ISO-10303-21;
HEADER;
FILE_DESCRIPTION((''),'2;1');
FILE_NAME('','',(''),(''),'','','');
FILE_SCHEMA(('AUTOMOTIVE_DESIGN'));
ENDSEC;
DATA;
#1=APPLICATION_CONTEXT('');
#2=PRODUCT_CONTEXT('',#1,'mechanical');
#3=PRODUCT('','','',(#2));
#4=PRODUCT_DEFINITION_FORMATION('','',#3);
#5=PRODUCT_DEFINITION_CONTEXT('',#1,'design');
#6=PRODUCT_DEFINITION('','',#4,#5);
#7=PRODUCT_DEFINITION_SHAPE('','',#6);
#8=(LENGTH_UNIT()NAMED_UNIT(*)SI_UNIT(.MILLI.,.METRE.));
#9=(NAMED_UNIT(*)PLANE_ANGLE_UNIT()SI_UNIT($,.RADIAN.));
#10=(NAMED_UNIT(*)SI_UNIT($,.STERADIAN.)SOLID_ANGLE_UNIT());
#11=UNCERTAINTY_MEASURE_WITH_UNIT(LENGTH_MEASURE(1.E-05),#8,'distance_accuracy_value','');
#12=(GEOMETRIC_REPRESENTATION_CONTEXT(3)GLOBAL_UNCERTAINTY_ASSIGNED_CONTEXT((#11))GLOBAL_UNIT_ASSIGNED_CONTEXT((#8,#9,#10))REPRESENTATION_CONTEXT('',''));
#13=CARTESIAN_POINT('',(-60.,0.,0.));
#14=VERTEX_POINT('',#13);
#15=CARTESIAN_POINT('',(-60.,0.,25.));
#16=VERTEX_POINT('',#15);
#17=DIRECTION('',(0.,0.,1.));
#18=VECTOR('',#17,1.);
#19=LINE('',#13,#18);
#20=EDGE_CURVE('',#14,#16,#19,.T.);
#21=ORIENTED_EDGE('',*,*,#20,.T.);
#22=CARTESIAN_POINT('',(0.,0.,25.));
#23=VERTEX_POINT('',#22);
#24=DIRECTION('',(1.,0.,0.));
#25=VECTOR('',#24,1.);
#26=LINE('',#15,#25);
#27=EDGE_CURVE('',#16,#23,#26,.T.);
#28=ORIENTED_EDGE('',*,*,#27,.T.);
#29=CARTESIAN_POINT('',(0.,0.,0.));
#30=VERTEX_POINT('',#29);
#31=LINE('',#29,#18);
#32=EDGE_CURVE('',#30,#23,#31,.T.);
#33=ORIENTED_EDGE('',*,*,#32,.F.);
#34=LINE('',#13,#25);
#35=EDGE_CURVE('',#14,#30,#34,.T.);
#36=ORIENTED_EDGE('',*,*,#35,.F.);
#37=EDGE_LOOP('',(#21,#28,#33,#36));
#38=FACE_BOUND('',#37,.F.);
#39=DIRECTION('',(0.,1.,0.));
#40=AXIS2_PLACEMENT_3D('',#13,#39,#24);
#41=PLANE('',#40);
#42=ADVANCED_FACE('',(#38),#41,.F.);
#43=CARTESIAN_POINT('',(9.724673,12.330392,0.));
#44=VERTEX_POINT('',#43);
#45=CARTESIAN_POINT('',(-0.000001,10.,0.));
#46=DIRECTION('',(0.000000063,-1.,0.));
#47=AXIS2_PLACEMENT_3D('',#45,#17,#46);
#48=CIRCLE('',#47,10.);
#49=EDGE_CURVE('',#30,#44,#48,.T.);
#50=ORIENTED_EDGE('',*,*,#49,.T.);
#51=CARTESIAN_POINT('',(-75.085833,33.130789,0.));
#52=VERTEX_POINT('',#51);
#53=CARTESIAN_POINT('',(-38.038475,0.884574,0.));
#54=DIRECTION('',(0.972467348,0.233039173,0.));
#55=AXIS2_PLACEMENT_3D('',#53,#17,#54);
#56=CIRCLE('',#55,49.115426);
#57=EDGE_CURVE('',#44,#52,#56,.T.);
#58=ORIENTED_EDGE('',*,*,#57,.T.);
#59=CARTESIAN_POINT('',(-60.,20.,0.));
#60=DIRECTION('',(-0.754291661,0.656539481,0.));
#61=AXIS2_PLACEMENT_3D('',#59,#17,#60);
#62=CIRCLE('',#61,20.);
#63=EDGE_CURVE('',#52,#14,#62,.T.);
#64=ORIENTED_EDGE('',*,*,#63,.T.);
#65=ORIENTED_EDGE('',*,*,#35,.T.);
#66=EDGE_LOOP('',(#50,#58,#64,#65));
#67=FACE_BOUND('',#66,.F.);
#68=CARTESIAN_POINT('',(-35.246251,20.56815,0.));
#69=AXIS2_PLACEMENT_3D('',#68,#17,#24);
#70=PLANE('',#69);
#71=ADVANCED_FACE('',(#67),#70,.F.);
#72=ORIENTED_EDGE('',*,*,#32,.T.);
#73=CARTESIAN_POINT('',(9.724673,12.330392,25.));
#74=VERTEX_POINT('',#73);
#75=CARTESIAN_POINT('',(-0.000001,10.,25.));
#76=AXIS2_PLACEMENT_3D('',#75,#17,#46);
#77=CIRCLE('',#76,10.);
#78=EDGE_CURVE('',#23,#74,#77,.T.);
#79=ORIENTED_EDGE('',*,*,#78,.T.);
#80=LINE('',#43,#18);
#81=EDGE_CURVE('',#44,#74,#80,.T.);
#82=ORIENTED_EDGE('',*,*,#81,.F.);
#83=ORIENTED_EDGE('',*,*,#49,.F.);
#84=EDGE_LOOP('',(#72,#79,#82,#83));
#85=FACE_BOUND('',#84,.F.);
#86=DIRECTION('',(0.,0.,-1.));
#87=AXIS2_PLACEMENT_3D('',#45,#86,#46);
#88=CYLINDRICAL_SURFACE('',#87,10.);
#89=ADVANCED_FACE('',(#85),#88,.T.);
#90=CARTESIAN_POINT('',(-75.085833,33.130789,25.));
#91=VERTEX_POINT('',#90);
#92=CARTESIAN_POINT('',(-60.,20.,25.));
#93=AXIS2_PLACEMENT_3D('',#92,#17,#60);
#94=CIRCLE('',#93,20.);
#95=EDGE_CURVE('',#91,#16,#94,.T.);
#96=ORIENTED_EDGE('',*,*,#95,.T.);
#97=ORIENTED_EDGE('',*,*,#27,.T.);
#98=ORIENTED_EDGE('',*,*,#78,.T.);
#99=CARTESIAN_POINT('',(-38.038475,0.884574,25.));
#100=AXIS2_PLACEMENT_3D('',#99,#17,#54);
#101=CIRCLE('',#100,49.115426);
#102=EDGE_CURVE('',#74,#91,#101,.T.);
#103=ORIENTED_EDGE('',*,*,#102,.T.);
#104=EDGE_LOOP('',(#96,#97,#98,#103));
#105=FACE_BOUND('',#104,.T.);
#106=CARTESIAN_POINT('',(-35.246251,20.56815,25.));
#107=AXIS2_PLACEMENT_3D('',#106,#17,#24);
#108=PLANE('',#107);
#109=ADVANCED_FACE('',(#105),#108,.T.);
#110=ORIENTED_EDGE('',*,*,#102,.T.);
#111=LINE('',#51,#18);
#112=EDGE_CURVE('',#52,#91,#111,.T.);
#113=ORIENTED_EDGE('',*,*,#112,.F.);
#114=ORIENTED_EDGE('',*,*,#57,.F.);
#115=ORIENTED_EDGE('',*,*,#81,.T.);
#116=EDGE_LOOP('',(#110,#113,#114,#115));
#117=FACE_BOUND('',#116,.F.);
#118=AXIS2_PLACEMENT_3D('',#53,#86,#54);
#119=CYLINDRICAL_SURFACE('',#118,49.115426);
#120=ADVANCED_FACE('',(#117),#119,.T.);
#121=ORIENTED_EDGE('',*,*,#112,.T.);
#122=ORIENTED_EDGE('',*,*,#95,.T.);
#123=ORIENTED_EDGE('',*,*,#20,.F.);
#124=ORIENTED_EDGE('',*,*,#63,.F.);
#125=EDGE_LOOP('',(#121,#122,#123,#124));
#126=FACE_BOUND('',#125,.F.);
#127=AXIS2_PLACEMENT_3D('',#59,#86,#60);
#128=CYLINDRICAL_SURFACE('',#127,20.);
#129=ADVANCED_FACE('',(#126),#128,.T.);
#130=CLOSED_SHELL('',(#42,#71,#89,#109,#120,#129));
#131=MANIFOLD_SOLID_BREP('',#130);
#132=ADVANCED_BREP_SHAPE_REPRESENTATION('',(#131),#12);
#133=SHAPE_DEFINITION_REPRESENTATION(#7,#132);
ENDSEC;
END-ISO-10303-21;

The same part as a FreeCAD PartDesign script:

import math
import FreeCAD as App
import Part
import Sketcher
from FreeCAD import Vector
Q = App.Units.Quantity

doc = App.newDocument("Part")
params = doc.addObject("Spreadsheet::Sheet", "Params")
for row, (alias, value) in enumerate([
    ("sketch1_radius", "10 mm"),
    ("sketch1_radius2", "20 mm"),
    ("sketch1_width", "60 mm"),
    ("pad1_length", "25 mm"),
], start=1):
    params.set(f"A{row}", alias)
    params.set(f"B{row}", "=" + value)
    params.setAlias(f"B{row}", alias)

body = doc.addObject("PartDesign::Body", "Body")

# Sketch on XY plane
sketch1 = body.newObject("Sketcher::SketchObject", "Sketch")
sketch1.AttachmentSupport = (doc.getObject("XY_Plane"), [""])
sketch1.MapMode = "FlatFace"
sketch1.addGeometry([
    Part.LineSegment(Vector(-60, 0, 0), Vector(0, 0, 0)),
    Part.ArcOfCircle(Part.Circle(Vector(0, 10, 0), Vector(0, 0, 1), 10), math.radians(-90), math.radians(13)),
    Part.ArcOfCircle(Part.Circle(Vector(-38, 1, 0), Vector(0, 0, 1), 49), math.radians(13), math.radians(139)),
    Part.ArcOfCircle(Part.Circle(Vector(-60, 20, 0), Vector(0, 0, 1), 20), math.radians(139), math.radians(270)),
], False)
sketch1.addConstraint([
    Sketcher.Constraint("Tangent", 0, 2, 1, 1),
    Sketcher.Constraint("Tangent", 1, 2, 2, 1),
    Sketcher.Constraint("Tangent", 2, 2, 3, 1),
    Sketcher.Constraint("Tangent", 3, 2, 0, 1),
    Sketcher.Constraint("Horizontal", 0),
    Sketcher.Constraint("Coincident", 0, 2, -1, 1),
    Sketcher.Constraint("Radius", 1, Q("10 mm")),
    Sketcher.Constraint("Radius", 3, Q("20 mm")),
    Sketcher.Constraint("DistanceX", 0, 1, 0, 2, Q("60 mm")),
    Sketcher.Constraint("Radius", 2, Q("49.115426 mm")),
])
sketch1.setExpression("Constraints[6]", "Params.sketch1_radius")
sketch1.setExpression("Constraints[7]", "Params.sketch1_radius2")
sketch1.setExpression("Constraints[8]", "Params.sketch1_width")
pad1 = body.newObject("PartDesign::Pad", "Pad")
pad1.Profile = sketch1
pad1.setExpression("Length", "Params.pad1_length")

doc.recompute()
